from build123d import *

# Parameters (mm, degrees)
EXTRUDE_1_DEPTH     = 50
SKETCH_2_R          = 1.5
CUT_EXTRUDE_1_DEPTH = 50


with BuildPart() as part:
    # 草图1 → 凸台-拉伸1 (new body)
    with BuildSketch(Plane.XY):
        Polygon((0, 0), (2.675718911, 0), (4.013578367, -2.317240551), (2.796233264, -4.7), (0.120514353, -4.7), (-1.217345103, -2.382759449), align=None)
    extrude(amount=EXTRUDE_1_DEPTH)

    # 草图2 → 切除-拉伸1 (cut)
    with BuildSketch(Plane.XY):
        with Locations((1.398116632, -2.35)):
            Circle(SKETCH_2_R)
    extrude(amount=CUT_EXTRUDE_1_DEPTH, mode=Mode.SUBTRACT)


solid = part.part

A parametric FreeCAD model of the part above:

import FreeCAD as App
import Part
import Sketcher

V = App.Vector
Q = App.Units.Quantity

doc = App.newDocument("Part")
body = doc.addObject("PartDesign::Body", "Body")

# Sketch on XY plane
sketch1 = doc.addObject("Sketcher::SketchObject", "Sketch")
body.addObject(sketch1)
sketch1.AttachmentSupport = (doc.XY_Plane, [""])
sketch1.MapMode = "FlatFace"
sketch1.addGeometry(Part.LineSegment(V(2.7, 0, 0), V(0, 0, 0)), False)
sketch1.addGeometry(Part.LineSegment(V(0, 0, 0), V(-1.2, -2.4, 0)), False)
sketch1.addGeometry(Part.LineSegment(V(-1.2, -2.4, 0), V(0.1, -4.7, 0)), False)
sketch1.addGeometry(Part.LineSegment(V(0.1, -4.7, 0), V(2.8, -4.7, 0)), False)
sketch1.addGeometry(Part.LineSegment(V(2.8, -4.7, 0), V(4, -2.3, 0)), False)
sketch1.addGeometry(Part.LineSegment(V(4, -2.3, 0), V(2.7, 0, 0)), False)
sketch1.addConstraint(Sketcher.Constraint("Coincident", 0, 2, 1, 1))
sketch1.addConstraint(Sketcher.Constraint("Coincident", 1, 2, 2, 1))
sketch1.addConstraint(Sketcher.Constraint("Coincident", 2, 2, 3, 1))
sketch1.addConstraint(Sketcher.Constraint("Coincident", 3, 2, 4, 1))
sketch1.addConstraint(Sketcher.Constraint("Coincident", 4, 2, 5, 1))
sketch1.addConstraint(Sketcher.Constraint("Coincident", 5, 2, 0, 1))
sketch1.addConstraint(Sketcher.Constraint("Horizontal", 0))
sketch1.addConstraint(Sketcher.Constraint("Horizontal", 3))
sketch1.addConstraint(Sketcher.Constraint("Coincident", 0, 2, -1, 1))
sketch1.addConstraint(Sketcher.Constraint("Parallel", 1, 4))
sketch1.addConstraint(Sketcher.Constraint("Parallel", 2, 5))
sketch1.addConstraint(Sketcher.Constraint("Equal", 0, 3))
sketch1.addConstraint(Sketcher.Constraint("Equal", 1, 2))
sketch1.addConstraint(Sketcher.Constraint("Angle", 2, Q("-60 deg")))
sketch1.addConstraint(Sketcher.Constraint("DistanceY", 2, 2, -1, 1, 4.7))
sketch1.addConstraint(Sketcher.Constraint("DistanceX", 0, 2, 0, 1, 2.675719))
sketch1.addConstraint(Sketcher.Constraint("Distance", 1, 2.675719))
pad1 = doc.addObject("PartDesign::Pad", "Pad")
body.addObject(pad1)
pad1.Profile = sketch1
pad1.Length = 50

# Sketch on XY plane
sketch2 = doc.addObject("Sketcher::SketchObject", "Sketch001")
body.addObject(sketch2)
sketch2.AttachmentSupport = (doc.XY_Plane, [""])
sketch2.MapMode = "FlatFace"
sketch2.addGeometry(Part.Circle(V(1.4, -2.4, 0), V(0, 0, 1), 1.5), False)
sketch2.addConstraint(Sketcher.Constraint("Diameter", 0, 3.0))
sketch2.addConstraint(Sketcher.Constraint("DistanceY", 0, 3, -1, 1, 2.35))
sketch2.addConstraint(Sketcher.Constraint("DistanceX", -1, 1, 0, 3, 1.398117))
pocket1 = doc.addObject("PartDesign::Pocket", "Pocket")
body.addObject(pocket1)
pocket1.Profile = sketch2
pocket1.Length = 50
pocket1.Reversed = True

doc.recompute()
